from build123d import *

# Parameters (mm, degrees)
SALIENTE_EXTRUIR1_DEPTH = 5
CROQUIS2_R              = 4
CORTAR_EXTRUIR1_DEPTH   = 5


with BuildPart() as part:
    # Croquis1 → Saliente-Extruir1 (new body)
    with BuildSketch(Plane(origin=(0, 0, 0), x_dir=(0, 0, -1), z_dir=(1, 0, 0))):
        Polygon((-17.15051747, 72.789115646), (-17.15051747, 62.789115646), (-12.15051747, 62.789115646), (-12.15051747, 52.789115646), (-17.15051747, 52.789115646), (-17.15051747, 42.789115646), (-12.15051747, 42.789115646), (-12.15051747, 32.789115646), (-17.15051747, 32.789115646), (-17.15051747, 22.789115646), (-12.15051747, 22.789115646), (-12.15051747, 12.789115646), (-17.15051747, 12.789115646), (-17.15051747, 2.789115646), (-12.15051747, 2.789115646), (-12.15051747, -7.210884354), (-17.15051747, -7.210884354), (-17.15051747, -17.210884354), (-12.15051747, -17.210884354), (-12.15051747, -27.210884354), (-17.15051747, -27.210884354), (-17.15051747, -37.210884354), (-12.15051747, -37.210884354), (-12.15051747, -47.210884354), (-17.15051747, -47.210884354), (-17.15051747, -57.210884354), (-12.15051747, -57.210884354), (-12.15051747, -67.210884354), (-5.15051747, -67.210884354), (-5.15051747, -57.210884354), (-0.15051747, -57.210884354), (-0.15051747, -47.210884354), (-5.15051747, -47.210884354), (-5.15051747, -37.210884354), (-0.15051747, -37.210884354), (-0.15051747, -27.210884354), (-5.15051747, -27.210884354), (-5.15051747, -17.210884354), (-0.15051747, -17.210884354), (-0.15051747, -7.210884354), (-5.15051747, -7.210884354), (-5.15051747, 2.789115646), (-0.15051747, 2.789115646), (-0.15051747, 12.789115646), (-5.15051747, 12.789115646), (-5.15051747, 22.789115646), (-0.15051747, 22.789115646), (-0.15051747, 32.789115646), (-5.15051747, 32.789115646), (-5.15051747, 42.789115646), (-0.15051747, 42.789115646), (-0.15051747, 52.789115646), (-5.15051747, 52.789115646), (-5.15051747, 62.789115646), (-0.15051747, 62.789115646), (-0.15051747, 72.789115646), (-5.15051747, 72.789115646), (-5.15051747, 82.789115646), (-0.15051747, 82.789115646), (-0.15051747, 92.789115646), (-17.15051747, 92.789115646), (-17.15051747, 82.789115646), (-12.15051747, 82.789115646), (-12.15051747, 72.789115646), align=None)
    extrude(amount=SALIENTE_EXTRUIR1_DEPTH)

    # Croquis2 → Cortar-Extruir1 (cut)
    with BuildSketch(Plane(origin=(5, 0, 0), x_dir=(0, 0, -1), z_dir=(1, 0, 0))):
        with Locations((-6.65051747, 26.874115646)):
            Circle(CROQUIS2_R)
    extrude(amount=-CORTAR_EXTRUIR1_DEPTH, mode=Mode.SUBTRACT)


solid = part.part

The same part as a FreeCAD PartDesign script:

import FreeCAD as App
import Part
import Sketcher

V = App.Vector


def add_polygon(sketch, points):
    """Adds a closed chain of lines whose ends are joined by coincident constraints."""
    first, n = sketch.GeometryCount, len(points)
    for a, b in zip(points, points[1:] + points[:1]):
        sketch.addGeometry(Part.LineSegment(App.Vector(*a, 0), App.Vector(*b, 0)), False)
    for i in range(n):
        sketch.addConstraint(Sketcher.Constraint("Coincident", first + i, 2, first + (i + 1) % n, 1))

doc = App.newDocument("Part")
body = doc.addObject("PartDesign::Body", "Body")

sketch1 = doc.addObject("Sketcher::SketchObject", "Sketch")
body.addObject(sketch1)
sketch1.AttachmentSupport = (doc.YZ_Plane, [""])
sketch1.MapMode = "FlatFace"
add_polygon(sketch1, [(72.789116, 17.150517), (62.789116, 17.150517), (62.789116, 12.150517), (52.789116, 12.150517), (52.789116, 17.150517), (42.789116, 17.150517), (42.789116, 12.150517), (32.789116, 12.150517), (32.789116, 17.150517), (22.789116, 17.150517), (22.789116, 12.150517), (12.789116, 12.150517), (12.789116, 17.150517), (2.789116, 17.150517), (2.789116, 12.150517), (-7.210884, 12.150517), (-7.210884, 17.150517), (-17.210884, 17.150517), (-17.210884, 12.150517), (-27.210884, 12.150517), (-27.210884, 17.150517), (-37.210884, 17.150517), (-37.210884, 12.150517), (-47.210884, 12.150517), (-47.210884, 17.150517), (-57.210884, 17.150517), (-57.210884, 12.150517), (-67.210884, 12.150517), (-67.210884, 5.150517), (-57.210884, 5.150517), (-57.210884, 0.150517), (-47.210884, 0.150517), (-47.210884, 5.150517), (-37.210884, 5.150517), (-37.210884, 0.150517), (-27.210884, 0.150517), (-27.210884, 5.150517), (-17.210884, 5.150517), (-17.210884, 0.150517), (-7.210884, 0.150517), (-7.210884, 5.150517), (2.789116, 5.150517), (2.789116, 0.150517), (12.789116, 0.150517), (12.789116, 5.150517), (22.789116, 5.150517), (22.789116, 0.150517), (32.789116, 0.150517), (32.789116, 5.150517), (42.789116, 5.150517), (42.789116, 0.150517), (52.789116, 0.150517), (52.789116, 5.150517), (62.789116, 5.150517), (62.789116, 0.150517), (72.789116, 0.150517), (72.789116, 5.150517), (82.789116, 5.150517), (82.789116, 0.150517), (92.789116, 0.150517), (92.789116, 17.150517), (82.789116, 17.150517), (82.789116, 12.150517), (72.789116, 12.150517)])
sketch1.addConstraint(Sketcher.Constraint("Horizontal", 0))
sketch1.addConstraint(Sketcher.Constraint("Vertical", 1))
sketch1.addConstraint(Sketcher.Constraint("Horizontal", 2))
sketch1.addConstraint(Sketcher.Constraint("Vertical", 3))
sketch1.addConstraint(Sketcher.Constraint("Horizontal", 4))
sketch1.addConstraint(Sketcher.Constraint("Vertical", 5))
sketch1.addConstraint(Sketcher.Constraint("Horizontal", 6))
sketch1.addConstraint(Sketcher.Constraint("Vertical", 7))
sketch1.addConstraint(Sketcher.Constraint("Horizontal", 8))
sketch1.addConstraint(Sketcher.Constraint("Vertical", 9))
sketch1.addConstraint(Sketcher.Constraint("Horizontal", 10))
sketch1.addConstraint(Sketcher.Constraint("Vertical", 11))
sketch1.addConstraint(Sketcher.Constraint("Horizontal", 12))
sketch1.addConstraint(Sketcher.Constraint("Vertical", 13))
sketch1.addConstraint(Sketcher.Constraint("Horizontal", 14))
sketch1.addConstraint(Sketcher.Constraint("Vertical", 15))
sketch1.addConstraint(Sketcher.Constraint("Horizontal", 16))
sketch1.addConstraint(Sketcher.Constraint("Vertical", 17))
sketch1.addConstraint(Sketcher.Constraint("Horizontal", 18))
sketch1.addConstraint(Sketcher.Constraint("Vertical", 19))
sketch1.addConstraint(Sketcher.Constraint("Horizontal", 20))
sketch1.addConstraint(Sketcher.Constraint("Vertical", 21))
sketch1.addConstraint(Sketcher.Constraint("Horizontal", 22))
sketch1.addConstraint(Sketcher.Constraint("Vertical", 23))
sketch1.addConstraint(Sketcher.Constraint("Horizontal", 24))
sketch1.addConstraint(Sketcher.Constraint("Vertical", 25))
sketch1.addConstraint(Sketcher.Constraint("Horizontal", 26))
sketch1.addConstraint(Sketcher.Constraint("Vertical", 27))
sketch1.addConstraint(Sketcher.Constraint("Horizontal", 28))
sketch1.addConstraint(Sketcher.Constraint("Vertical", 29))
sketch1.addConstraint(Sketcher.Constraint("Horizontal", 30))
sketch1.addConstraint(Sketcher.Constraint("Vertical", 31))
sketch1.addConstraint(Sketcher.Constraint("Horizontal", 32))
sketch1.addConstraint(Sketcher.Constraint("Vertical", 33))
sketch1.addConstraint(Sketcher.Constraint("Horizontal", 34))
sketch1.addConstraint(Sketcher.Constraint("Vertical", 35))
sketch1.addConstraint(Sketcher.Constraint("Horizontal", 36))
sketch1.addConstraint(Sketcher.Constraint("Vertical", 37))
sketch1.addConstraint(Sketcher.Constraint("Horizontal", 38))
sketch1.addConstraint(Sketcher.Constraint("Vertical", 39))
sketch1.addConstraint(Sketcher.Constraint("Horizontal", 40))
sketch1.addConstraint(Sketcher.Constraint("Vertical", 41))
sketch1.addConstraint(Sketcher.Constraint("Horizontal", 42))
sketch1.addConstraint(Sketcher.Constraint("Vertical", 43))
sketch1.addConstraint(Sketcher.Constraint("Horizontal", 44))
sketch1.addConstraint(Sketcher.Constraint("Vertical", 45))
sketch1.addConstraint(Sketcher.Constraint("Horizontal", 46))
sketch1.addConstraint(Sketcher.Constraint("Vertical", 47))
sketch1.addConstraint(Sketcher.Constraint("Horizontal", 48))
sketch1.addConstraint(Sketcher.Constraint("Vertical", 49))
sketch1.addConstraint(Sketcher.Constraint("Horizontal", 50))
sketch1.addConstraint(Sketcher.Constraint("Vertical", 51))
sketch1.addConstraint(Sketcher.Constraint("Horizontal", 52))
sketch1.addConstraint(Sketcher.Constraint("Vertical", 53))
sketch1.addConstraint(Sketcher.Constraint("Horizontal", 54))
sketch1.addConstraint(Sketcher.Constraint("Vertical", 55))
sketch1.addConstraint(Sketcher.Constraint("Horizontal", 56))
sketch1.addConstraint(Sketcher.Constraint("Vertical", 57))
sketch1.addConstraint(Sketcher.Constraint("Horizontal", 58))
sketch1.addConstraint(Sketcher.Constraint("Vertical", 59))
sketch1.addConstraint(Sketcher.Constraint("Horizontal", 60))
sketch1.addConstraint(Sketcher.Constraint("Vertical", 61))
sketch1.addConstraint(Sketcher.Constraint("Horizontal", 62))
sketch1.addConstraint(Sketcher.Constraint("Vertical", 63))
sketch1.addConstraint(Sketcher.Constraint("Horizontal", 0, 2, 3, 2))
sketch1.addConstraint(Sketcher.Constraint("Horizontal", 2, 2, 5, 2))
sketch1.addConstraint(Sketcher.Constraint("Horizontal", 4, 2, 7, 2))
sketch1.addConstraint(Sketcher.Constraint("Horizontal", 6, 2, 9, 2))
sketch1.addConstraint(Sketcher.Constraint("Horizontal", 8, 2, 11, 2))
sketch1.addConstraint(Sketcher.Constraint("Horizontal", 10, 2, 13, 2))
sketch1.addConstraint(Sketcher.Constraint("Horizontal", 12, 2, 15, 2))
sketch1.addConstraint(Sketcher.Constraint("Horizontal", 14, 2, 17, 2))
sketch1.addConstraint(Sketcher.Constraint("Horizontal", 16, 2, 19, 2))
sketch1.addConstraint(Sketcher.Constraint("Horizontal", 18, 2, 21, 2))
sketch1.addConstraint(Sketcher.Constraint("Horizontal", 20, 2, 23, 2))
sketch1.addConstraint(Sketcher.Constraint("Horizontal", 22, 2, 25, 2))
sketch1.addConstraint(Sketcher.Constraint("Horizontal", 28, 2, 31, 2))
sketch1.addConstraint(Sketcher.Constraint("Horizontal", 30, 2, 33, 2))
sketch1.addConstraint(Sketcher.Constraint("Horizontal", 32, 2, 35, 2))
sketch1.addConstraint(Sketcher.Constraint("Horizontal", 34, 2, 37, 2))
sketch1.addConstraint(Sketcher.Constraint("Horizontal", 36, 2, 39, 2))
sketch1.addConstraint(Sketcher.Constraint("Horizontal", 38, 2, 41, 2))
sketch1.addConstraint(Sketcher.Constraint("Horizontal", 40, 2, 43, 2))
sketch1.addConstraint(Sketcher.Constraint("Horizontal", 42, 2, 45, 2))
sketch1.addConstraint(Sketcher.Constraint("Horizontal", 44, 2, 47, 2))
sketch1.addConstraint(Sketcher.Constraint("Horizontal", 46, 2, 49, 2))
sketch1.addConstraint(Sketcher.Constraint("Horizontal", 48, 2, 51, 2))
sketch1.addConstraint(Sketcher.Constraint("Horizontal", 50, 2, 53, 2))
sketch1.addConstraint(Sketcher.Constraint("Horizontal", 52, 2, 55, 2))
sketch1.addConstraint(Sketcher.Constraint("Horizontal", 54, 2, 57, 2))
sketch1.addConstraint(Sketcher.Constraint("Horizontal", 24, 2, 59, 2))
sketch1.addConstraint(Sketcher.Constraint("Horizontal", 26, 2, 61, 2))
sketch1.addConstraint(Sketcher.Constraint("Vertical", 25, 2, 28, 2))
sketch1.addConstraint(Sketcher.Constraint("Vertical", 23, 2, 30, 2))
sketch1.addConstraint(Sketcher.Constraint("Vertical", 21, 2, 32, 2))
sketch1.addConstraint(Sketcher.Constraint("Vertical", 19, 2, 34, 2))
sketch1.addConstraint(Sketcher.Constraint("Vertical", 17, 2, 36, 2))
sketch1.addConstraint(Sketcher.Constraint("Vertical", 15, 2, 38, 2))
sketch1.addConstraint(Sketcher.Constraint("Vertical", 13, 2, 40, 2))
sketch1.addConstraint(Sketcher.Constraint("Vertical", 11, 2, 42, 2))
sketch1.addConstraint(Sketcher.Constraint("Vertical", 9, 2, 44, 2))
sketch1.addConstraint(Sketcher.Constraint("Vertical", 7, 2, 46, 2))
sketch1.addConstraint(Sketcher.Constraint("Vertical", 5, 2, 48, 2))
sketch1.addConstraint(Sketcher.Constraint("Vertical", 3, 2, 50, 2))
sketch1.addConstraint(Sketcher.Constraint("Vertical", 1, 2, 52, 2))
sketch1.addConstraint(Sketcher.Constraint("Vertical", 57, 2, 60, 2))
sketch1.addConstraint(Sketcher.Constraint("Vertical", 55, 2, 62, 2))
sketch1.addConstraint(Sketcher.Constraint("Equal", 0, 2))
sketch1.addConstraint(Sketcher.Constraint("Equal", 2, 4))
sketch1.addConstraint(Sketcher.Constraint("Equal", 4, 6))
sketch1.addConstraint(Sketcher.Constraint("Equal", 6, 8))
sketch1.addConstraint(Sketcher.Constraint("Equal", 8, 10))
sketch1.addConstraint(Sketcher.Constraint("Equal", 10, 12))
sketch1.addConstraint(Sketcher.Constraint("Equal", 12, 14))
sketch1.addConstraint(Sketcher.Constraint("Equal", 14, 16))
sketch1.addConstraint(Sketcher.Constraint("Equal", 16, 18))
sketch1.addConstraint(Sketcher.Constraint("Equal", 18, 20))
sketch1.addConstraint(Sketcher.Constraint("Equal", 20, 22))
sketch1.addConstraint(Sketcher.Constraint("Equal", 22, 24))
sketch1.addConstraint(Sketcher.Constraint("Equal", 24, 26))
sketch1.addConstraint(Sketcher.Constraint("Equal", 54, 56))
sketch1.addConstraint(Sketcher.Constraint("Equal", 56, 58))
sketch1.addConstraint(Sketcher.Constraint("Equal", 25, 29))
sketch1.addConstraint(Sketcher.Constraint("DistanceX", 0, 2, 0, 1, 10.0))
sketch1.addConstraint(Sketcher.Constraint("DistanceY", 1, 2, 1, 1, 5.0))
sketch1.addConstraint(Sketcher.Constraint("DistanceY", 27, 2, 27, 1, 7.0))
sketch1.addConstraint(Sketcher.Constraint("DistanceX", -1, 1, 0, 2, 62.789116))
sketch1.addConstraint(Sketcher.Constraint("DistanceY", -1, 1, 0, 2, 17.150517))
pad1 = doc.addObject("PartDesign::Pad", "Pad")
body.addObject(pad1)
pad1.Profile = sketch1
pad1.Length = 5

sketch2 = doc.addObject("Sketcher::SketchObject", "Sketch001")
body.addObject(sketch2)
sketch2.AttachmentSupport = (doc.YZ_Plane, [""])
sketch2.MapMode = "FlatFace"
sketch2.AttachmentOffset = App.Placement(V(0, 0, 5), App.Rotation())
sketch2.addGeometry(Part.Circle(V(26.874116, 6.650517, 0), V(0, 0, 1), 4), False)
sketch2.addConstraint(Sketcher.Constraint("Diameter", 0, 8.0))
sketch2.addConstraint(Sketcher.Constraint("DistanceX", -1, 1, 0, 3, 26.874116))
sketch2.addConstraint(Sketcher.Constraint("DistanceY", -1, 1, 0, 3, 6.650517))
pocket1 = doc.addObject("PartDesign::Pocket", "Pocket")
body.addObject(pocket1)
pocket1.Profile = sketch2
pocket1.Length = 5

doc.recompute()
